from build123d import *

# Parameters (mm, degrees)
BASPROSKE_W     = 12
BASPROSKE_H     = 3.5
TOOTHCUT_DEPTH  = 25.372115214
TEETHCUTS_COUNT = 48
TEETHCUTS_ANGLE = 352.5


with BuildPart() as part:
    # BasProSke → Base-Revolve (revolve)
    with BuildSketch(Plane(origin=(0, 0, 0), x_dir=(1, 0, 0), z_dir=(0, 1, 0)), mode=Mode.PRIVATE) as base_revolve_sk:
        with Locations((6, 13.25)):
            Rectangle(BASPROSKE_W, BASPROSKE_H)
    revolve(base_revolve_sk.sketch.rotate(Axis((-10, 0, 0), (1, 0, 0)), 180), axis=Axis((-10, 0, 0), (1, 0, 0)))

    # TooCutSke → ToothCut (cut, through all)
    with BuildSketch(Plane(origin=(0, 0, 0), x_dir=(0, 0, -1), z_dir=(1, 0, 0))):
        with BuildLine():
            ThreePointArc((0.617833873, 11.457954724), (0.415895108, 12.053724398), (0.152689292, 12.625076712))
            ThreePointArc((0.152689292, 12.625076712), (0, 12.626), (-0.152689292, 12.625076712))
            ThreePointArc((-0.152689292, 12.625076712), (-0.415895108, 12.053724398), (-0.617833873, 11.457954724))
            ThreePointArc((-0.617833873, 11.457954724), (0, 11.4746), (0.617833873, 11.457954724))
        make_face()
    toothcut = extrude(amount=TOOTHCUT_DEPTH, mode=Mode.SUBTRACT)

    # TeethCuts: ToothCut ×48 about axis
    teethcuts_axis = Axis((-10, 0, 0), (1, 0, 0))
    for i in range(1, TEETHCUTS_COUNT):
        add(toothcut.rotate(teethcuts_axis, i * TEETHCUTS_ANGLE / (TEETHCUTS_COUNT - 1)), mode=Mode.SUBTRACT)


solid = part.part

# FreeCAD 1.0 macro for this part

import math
import FreeCAD as App
import Part
import Sketcher
from FreeCAD import Vector


def add_polygon(sketch, points):
    """Adds a closed chain of lines whose ends are joined by coincident constraints."""
    first, n = sketch.GeometryCount, len(points)
    for a, b in zip(points, points[1:] + points[:1]):
        sketch.addGeometry(Part.LineSegment(App.Vector(*a, 0), App.Vector(*b, 0)), False)
    for i in range(n):
        sketch.addConstraint(Sketcher.Constraint("Coincident", first + i, 2, first + (i + 1) % n, 1))

doc = App.newDocument("Part")
body = doc.addObject("PartDesign::Body", "Body")

sketch1 = body.newObject("Sketcher::SketchObject", "Sketch")
sketch1.AttachmentSupport = (doc.getObject("XZ_Plane"), [""])
sketch1.MapMode = "FlatFace"
add_polygon(sketch1, [(0, -15), (0, -11.5), (12, -11.5), (12, -15)])
sketch1.addConstraint(Sketcher.Constraint("Vertical", 0))
sketch1.addConstraint(Sketcher.Constraint("Horizontal", 1))
sketch1.addConstraint(Sketcher.Constraint("Vertical", 2))
sketch1.addConstraint(Sketcher.Constraint("Horizontal", 3))
sketch1.addConstraint(Sketcher.Constraint("PointOnObject", 0, 2, -2))
sketch1.addConstraint(Sketcher.Constraint("DistanceX", 1, 1, 1, 2, 12.0))
sketch1.addConstraint(Sketcher.Constraint("DistanceY", 0, 1, 0, 2, 3.5))
sketch1.addConstraint(Sketcher.Constraint("DistanceY", 2, 2, -1, 1, 15.0))
revolution = body.newObject("PartDesign::Revolution", "Revolution")
revolution.Profile = sketch1
revolution.ReferenceAxis = (sketch1, ["H_Axis"])
revolution.Angle = 360

sketch2 = body.newObject("Sketcher::SketchObject", "Sketch001")
sketch2.AttachmentSupport = (doc.getObject("YZ_Plane"), [""])
sketch2.MapMode = "FlatFace"
sketch2.addGeometry(Part.ArcOfCircle(Part.Circle(Vector(9.83, 5.16, 0), Vector(0, 0, 1), 6), math.radians(-74.28), math.radians(-62.26)), False)
sketch2.addGeometry(Part.ArcOfCircle(Part.Circle(Vector(0, 0, 0), Vector(0, 0, 1), 12.63), math.radians(-0.69), math.radians(0.69)), False)
sketch2.addGeometry(Part.ArcOfCircle(Part.Circle(Vector(9.83, -5.16, 0), Vector(0, 0, 1), 6), math.radians(62.26), math.radians(74.28)), False)
sketch2.addGeometry(Part.ArcOfCircle(Part.Circle(Vector(0, 0, 0), Vector(0, 0, 1), 11.47), math.radians(-3.09), math.radians(3.09)), False)
sketch2.addConstraint(Sketcher.Constraint("Coincident", 0, 2, 1, 1))
sketch2.addConstraint(Sketcher.Constraint("Coincident", 1, 2, 2, 1))
sketch2.addConstraint(Sketcher.Constraint("Coincident", 2, 2, 3, 2))
sketch2.addConstraint(Sketcher.Constraint("Coincident", 3, 1, 0, 1))
sketch2.addConstraint(Sketcher.Constraint("Coincident", 1, 3, -1, 1))
sketch2.addConstraint(Sketcher.Constraint("Coincident", 3, 3, -1, 1))
sketch2.addConstraint(Sketcher.Constraint("Equal", 0, 2))
sketch2.addConstraint(Sketcher.Constraint("Symmetric", 0, 3, 2, 3, -1))
sketch2.addConstraint(Sketcher.Constraint("Radius", 0, 6.0))
sketch2.addConstraint(Sketcher.Constraint("Radius", 3, 11.4746))
sketch2.addConstraint(Sketcher.Constraint("Radius", 1, 12.626002))
sketch2.addConstraint(Sketcher.Constraint("DistanceX", -1, 1, 0, 3, 9.832398))
sketch2.addConstraint(Sketcher.Constraint("DistanceY", 2, 3, 2, 2, 5.775601))
pocket1 = body.newObject("PartDesign::Pocket", "Pocket")
pocket1.Profile = sketch2
pocket1.Type = "ThroughAll"
pocket1.Reversed = True
doc.recompute()

polarpattern = body.newObject("PartDesign::PolarPattern", "PolarPattern")
polarpattern.Originals = [pocket1]
polarpattern.Axis = (doc.getObject("X_Axis"), [""])
polarpattern.Angle = 360
polarpattern.Occurrences = 48
body.Tip = polarpattern

doc.recompute()
